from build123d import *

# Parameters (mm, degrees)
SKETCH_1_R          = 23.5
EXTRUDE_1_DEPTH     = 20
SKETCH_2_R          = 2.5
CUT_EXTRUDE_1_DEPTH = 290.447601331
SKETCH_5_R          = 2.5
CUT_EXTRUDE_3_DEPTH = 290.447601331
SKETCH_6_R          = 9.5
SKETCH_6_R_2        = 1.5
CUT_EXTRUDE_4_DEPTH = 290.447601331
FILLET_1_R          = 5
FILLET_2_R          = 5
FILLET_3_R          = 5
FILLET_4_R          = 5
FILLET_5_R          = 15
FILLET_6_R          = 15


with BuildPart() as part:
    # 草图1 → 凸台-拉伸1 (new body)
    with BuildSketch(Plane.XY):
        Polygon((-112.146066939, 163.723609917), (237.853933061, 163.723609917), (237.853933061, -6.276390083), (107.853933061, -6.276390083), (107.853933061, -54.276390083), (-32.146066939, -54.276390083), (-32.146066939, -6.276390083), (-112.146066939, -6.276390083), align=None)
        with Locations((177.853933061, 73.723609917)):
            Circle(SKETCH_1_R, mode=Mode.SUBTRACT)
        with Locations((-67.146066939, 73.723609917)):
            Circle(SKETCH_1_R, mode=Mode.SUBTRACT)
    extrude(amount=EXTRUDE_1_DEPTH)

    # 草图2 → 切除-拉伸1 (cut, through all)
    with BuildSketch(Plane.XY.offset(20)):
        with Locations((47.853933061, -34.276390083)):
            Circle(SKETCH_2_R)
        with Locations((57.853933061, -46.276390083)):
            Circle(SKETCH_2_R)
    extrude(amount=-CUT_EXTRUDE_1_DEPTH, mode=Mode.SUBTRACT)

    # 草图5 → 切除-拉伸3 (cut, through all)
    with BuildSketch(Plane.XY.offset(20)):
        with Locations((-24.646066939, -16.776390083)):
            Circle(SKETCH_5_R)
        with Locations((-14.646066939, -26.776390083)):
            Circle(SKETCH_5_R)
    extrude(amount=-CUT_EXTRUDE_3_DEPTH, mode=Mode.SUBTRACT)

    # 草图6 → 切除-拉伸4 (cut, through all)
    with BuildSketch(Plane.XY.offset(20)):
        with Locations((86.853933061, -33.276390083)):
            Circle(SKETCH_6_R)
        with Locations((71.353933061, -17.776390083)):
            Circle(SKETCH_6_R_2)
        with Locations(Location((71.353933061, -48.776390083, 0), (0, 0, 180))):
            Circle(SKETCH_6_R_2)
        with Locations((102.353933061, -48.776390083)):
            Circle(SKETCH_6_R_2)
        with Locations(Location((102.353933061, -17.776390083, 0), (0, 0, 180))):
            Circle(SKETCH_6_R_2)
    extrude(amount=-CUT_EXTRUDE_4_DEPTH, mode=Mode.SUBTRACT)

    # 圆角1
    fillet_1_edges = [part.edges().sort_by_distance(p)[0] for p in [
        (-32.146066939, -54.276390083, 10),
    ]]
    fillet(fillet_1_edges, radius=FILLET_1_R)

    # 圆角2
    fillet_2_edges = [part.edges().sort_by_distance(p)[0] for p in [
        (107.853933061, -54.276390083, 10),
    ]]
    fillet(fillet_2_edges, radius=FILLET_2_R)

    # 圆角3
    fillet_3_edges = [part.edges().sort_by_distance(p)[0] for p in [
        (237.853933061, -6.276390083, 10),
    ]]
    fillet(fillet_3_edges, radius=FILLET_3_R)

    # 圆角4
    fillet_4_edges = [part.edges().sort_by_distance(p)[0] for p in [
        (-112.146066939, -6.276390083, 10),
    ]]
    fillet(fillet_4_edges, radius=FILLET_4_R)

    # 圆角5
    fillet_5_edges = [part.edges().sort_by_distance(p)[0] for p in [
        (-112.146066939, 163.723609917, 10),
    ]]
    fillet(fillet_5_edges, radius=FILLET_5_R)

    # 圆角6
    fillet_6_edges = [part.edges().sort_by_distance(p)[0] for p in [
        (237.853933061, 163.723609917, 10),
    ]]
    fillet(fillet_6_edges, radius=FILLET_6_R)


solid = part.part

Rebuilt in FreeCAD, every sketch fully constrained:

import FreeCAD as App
import Part
import Sketcher

V = App.Vector


def edges_at(feature, points):
    """Names of the edges that pass closest to the given points."""
    edges = feature.Shape.Edges
    near = lambda p: min(range(len(edges)), key=lambda i: edges[i].distToShape(Part.Vertex(*p))[0])
    return sorted({f"Edge{near(p) + 1}" for p in points})


def add_polygon(sketch, points):
    """Adds a closed chain of lines whose ends are joined by coincident constraints."""
    first, n = sketch.GeometryCount, len(points)
    for a, b in zip(points, points[1:] + points[:1]):
        sketch.addGeometry(Part.LineSegment(App.Vector(*a, 0), App.Vector(*b, 0)), False)
    for i in range(n):
        sketch.addConstraint(Sketcher.Constraint("Coincident", first + i, 2, first + (i + 1) % n, 1))

doc = App.newDocument("Part")
body = doc.addObject("PartDesign::Body", "Body")

sketch1 = body.newObject("Sketcher::SketchObject", "Sketch")
sketch1.AttachmentSupport = (doc.getObject("XY_Plane"), [""])
sketch1.MapMode = "FlatFace"
add_polygon(sketch1, [(237.853933, 163.72361), (-112.146067, 163.72361), (-112.146067, -6.27639), (-32.146067, -6.27639), (-32.146067, -54.27639), (107.853933, -54.27639), (107.853933, -6.27639), (237.853933, -6.27639)])
sketch1.addGeometry(Part.Circle(V(177.853933, 73.72361, 0), V(0, 0, 1), 23.5), False)
sketch1.addGeometry(Part.Circle(V(-67.146067, 73.72361, 0), V(0, 0, 1), 23.5), False)
sketch1.addConstraint([
    Sketcher.Constraint("Horizontal", 0),
    Sketcher.Constraint("Vertical", 1),
    Sketcher.Constraint("Horizontal", 2),
    Sketcher.Constraint("Vertical", 3),
    Sketcher.Constraint("Horizontal", 4),
    Sketcher.Constraint("Vertical", 5),
    Sketcher.Constraint("Horizontal", 6),
    Sketcher.Constraint("Vertical", 7),
    Sketcher.Constraint("Equal", 8, 9),
    Sketcher.Constraint("Horizontal", 8, 3, 9, 3),
    Sketcher.Constraint("Horizontal", 2, 2, 5, 2),
    Sketcher.Constraint("Diameter", 8, 47.0),
    Sketcher.Constraint("DistanceX", 0, 2, 0, 1, 350.0),
    Sketcher.Constraint("DistanceX", 2, 1, 2, 2, 80.0),
    Sketcher.Constraint("DistanceX", 4, 1, 4, 2, 140.0),
    Sketcher.Constraint("DistanceY", 1, 2, 1, 1, 170.0),
    Sketcher.Constraint("DistanceY", 3, 2, 3, 1, 48.0),
    Sketcher.Constraint("DistanceX", 9, 3, 8, 3, 245.0),
    Sketcher.Constraint("DistanceX", 0, 2, 9, 3, 45.0),
    Sketcher.Constraint("DistanceY", 9, 3, 0, 2, 90.0),
    Sketcher.Constraint("DistanceY", -1, 1, 8, 3, 73.72361),
    Sketcher.Constraint("DistanceX", -1, 1, 8, 3, 177.853933),
])
pad1 = body.newObject("PartDesign::Pad", "Pad")
pad1.Profile = sketch1
pad1.Length = 20

sketch2 = body.newObject("Sketcher::SketchObject", "Sketch001")
sketch2.AttachmentSupport = (doc.getObject("XY_Plane"), [""])
sketch2.MapMode = "FlatFace"
sketch2.AttachmentOffset = App.Placement(V(0, 0, 20), App.Rotation())
sketch2.addGeometry([
    Part.Circle(V(47.853933, -34.27639, 0), V(0, 0, 1), 2.5),
    Part.Circle(V(57.853933, -46.27639, 0), V(0, 0, 1), 2.5),
], False)
sketch2.addConstraint([
    Sketcher.Constraint("Equal", 0, 1),
    Sketcher.Constraint("Diameter", 0, 5.0),
    Sketcher.Constraint("DistanceX", 0, 3, 1, 3, 10.0),
    Sketcher.Constraint("DistanceY", 1, 3, 0, 3, 12.0),
    Sketcher.Constraint("DistanceY", 0, 3, -1, 1, 34.27639),
    Sketcher.Constraint("DistanceX", -1, 1, 0, 3, 47.853933),
])
pocket1 = body.newObject("PartDesign::Pocket", "Pocket")
pocket1.Profile = sketch2
pocket1.Type = "ThroughAll"

sketch3 = body.newObject("Sketcher::SketchObject", "Sketch002")
sketch3.AttachmentSupport = (doc.getObject("XY_Plane"), [""])
sketch3.MapMode = "FlatFace"
sketch3.AttachmentOffset = App.Placement(V(0, 0, 20), App.Rotation())
sketch3.addGeometry([
    Part.Circle(V(-24.646067, -16.77639, 0), V(0, 0, 1), 2.5),
    Part.Circle(V(-14.646067, -26.77639, 0), V(0, 0, 1), 2.5),
], False)
sketch3.addConstraint([
    Sketcher.Constraint("Equal", 0, 1),
    Sketcher.Constraint("Diameter", 0, 5.0),
    Sketcher.Constraint("DistanceX", 0, 3, 1, 3, 10.0),
    Sketcher.Constraint("DistanceY", 1, 3, 0, 3, 10.0),
    Sketcher.Constraint("DistanceY", 0, 3, -1, 1, 16.77639),
    Sketcher.Constraint("DistanceX", 0, 3, -1, 1, 24.646067),
])
pocket2 = body.newObject("PartDesign::Pocket", "Pocket001")
pocket2.Profile = sketch3
pocket2.Type = "ThroughAll"

sketch4 = body.newObject("Sketcher::SketchObject", "Sketch003")
sketch4.AttachmentSupport = (doc.getObject("XY_Plane"), [""])
sketch4.MapMode = "FlatFace"
sketch4.AttachmentOffset = App.Placement(V(0, 0, 20), App.Rotation())
sketch4.addGeometry([
    Part.Circle(V(86.853933, -33.27639, 0), V(0, 0, 1), 9.5),
    Part.Circle(V(71.353933, -17.77639, 0), V(0, 0, 1), 1.5),
    Part.Circle(V(71.353933, -48.77639, 0), V(0, 0, 1), 1.5),
    Part.Circle(V(102.353933, -48.77639, 0), V(0, 0, 1), 1.5),
    Part.Circle(V(102.353933, -17.77639, 0), V(0, 0, 1), 1.5),
], False)
sketch4.addConstraint([
    Sketcher.Constraint("Equal", 1, 2),
    Sketcher.Constraint("Equal", 2, 3),
    Sketcher.Constraint("Equal", 3, 4),
    Sketcher.Constraint("Horizontal", 2, 3, 3, 3),
    Sketcher.Constraint("Horizontal", 1, 3, 4, 3),
    Sketcher.Constraint("Vertical", 1, 3, 2, 3),
    Sketcher.Constraint("Vertical", 3, 3, 4, 3),
    Sketcher.Constraint("Diameter", 0, 19.0),
    Sketcher.Constraint("Diameter", 1, 3.0),
    Sketcher.Constraint("DistanceY", 2, 3, 1, 3, 31.0),
    Sketcher.Constraint("DistanceX", 2, 3, 3, 3, 31.0),
    Sketcher.Constraint("DistanceX", 1, 3, 0, 3, 15.5),
    Sketcher.Constraint("DistanceY", 0, 3, 1, 3, 15.5),
    Sketcher.Constraint("DistanceY", 0, 3, -1, 1, 33.27639),
    Sketcher.Constraint("DistanceX", -1, 1, 0, 3, 86.853933),
])
pocket3 = body.newObject("PartDesign::Pocket", "Pocket002")
pocket3.Profile = sketch4
pocket3.Type = "ThroughAll"
doc.recompute()

fillet = body.newObject("PartDesign::Fillet", "Fillet")
fillet.Base = (pocket3, edges_at(pocket3, [(-32.146, -54.276, 10)]))
fillet.Radius = 5
doc.recompute()

fillet2 = body.newObject("PartDesign::Fillet", "Fillet001")
fillet2.Base = (fillet, edges_at(fillet, [(107.854, -54.276, 10)]))
fillet2.Radius = 5
doc.recompute()

fillet3 = body.newObject("PartDesign::Fillet", "Fillet002")
fillet3.Base = (fillet2, edges_at(fillet2, [(237.854, -6.276, 10)]))
fillet3.Radius = 5
doc.recompute()

fillet4 = body.newObject("PartDesign::Fillet", "Fillet003")
fillet4.Base = (fillet3, edges_at(fillet3, [(-112.146, -6.276, 10)]))
fillet4.Radius = 5
doc.recompute()

fillet5 = body.newObject("PartDesign::Fillet", "Fillet004")
fillet5.Base = (fillet4, edges_at(fillet4, [(-112.146, 163.724, 10)]))
fillet5.Radius = 15
doc.recompute()

fillet6 = body.newObject("PartDesign::Fillet", "Fillet005")
fillet6.Base = (fillet5, edges_at(fillet5, [(237.854, 163.724, 10)]))
fillet6.Radius = 15

doc.recompute()
